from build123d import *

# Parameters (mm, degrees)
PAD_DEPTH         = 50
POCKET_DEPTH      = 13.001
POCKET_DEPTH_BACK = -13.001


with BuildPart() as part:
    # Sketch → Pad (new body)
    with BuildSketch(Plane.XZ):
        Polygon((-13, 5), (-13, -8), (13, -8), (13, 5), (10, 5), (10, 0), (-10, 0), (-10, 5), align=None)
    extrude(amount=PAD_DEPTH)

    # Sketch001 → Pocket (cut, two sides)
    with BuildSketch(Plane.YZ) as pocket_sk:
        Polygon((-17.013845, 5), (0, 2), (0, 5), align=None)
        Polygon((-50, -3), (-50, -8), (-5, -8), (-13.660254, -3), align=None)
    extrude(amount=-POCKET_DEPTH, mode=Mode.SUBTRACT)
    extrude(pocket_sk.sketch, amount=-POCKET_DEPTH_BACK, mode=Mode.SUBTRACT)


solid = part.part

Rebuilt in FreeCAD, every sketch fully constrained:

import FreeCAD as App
import Part
import Sketcher
from FreeCAD import Vector
Q = App.Units.Quantity

doc = App.newDocument("Part")
body = doc.addObject("PartDesign::Body", "Body")

# Sketch on XZ plane
sketch1 = body.newObject("Sketcher::SketchObject", "Sketch")
sketch1.AttachmentSupport = (doc.getObject("XZ_Plane"), [""])
sketch1.MapMode = "FlatFace"
sketch1.addGeometry([
    Part.LineSegment(Vector(-13, 5, 0), Vector(-13, -8, 0)),  # 0
    Part.LineSegment(Vector(-13, -8, 0), Vector(13, -8, 0)),  # 1
    Part.LineSegment(Vector(13, -8, 0), Vector(13, 5, 0)),  # 2
    Part.LineSegment(Vector(13, 5, 0), Vector(10, 5, 0)),  # 3
    Part.LineSegment(Vector(10, 5, 0), Vector(10, 0, 0)),  # 4
    Part.LineSegment(Vector(10, 0, 0), Vector(-10, 0, 0)),  # 5
    Part.LineSegment(Vector(-10, 0, 0), Vector(-10, 5, 0)),  # 6
    Part.LineSegment(Vector(-10, 5, 0), Vector(-13, 5, 0)),  # 7
], False)
sketch1.addConstraint([
    Sketcher.Constraint("Coincident", 0, 2, 1, 1),
    Sketcher.Constraint("Coincident", 1, 2, 2, 1),
    Sketcher.Constraint("Coincident", 2, 2, 3, 1),
    Sketcher.Constraint("Coincident", 3, 2, 4, 1),
    Sketcher.Constraint("Coincident", 4, 2, 5, 1),
    Sketcher.Constraint("Coincident", 5, 2, 6, 1),
    Sketcher.Constraint("Coincident", 6, 2, 7, 1),
    Sketcher.Constraint("Coincident", 7, 2, 0, 1),
    Sketcher.Constraint("Vertical", 0),
    Sketcher.Constraint("Horizontal", 1),
    Sketcher.Constraint("Vertical", 2),
    Sketcher.Constraint("Horizontal", 3),
    Sketcher.Constraint("Vertical", 4),
    Sketcher.Constraint("Horizontal", 5),
    Sketcher.Constraint("Vertical", 6),
    Sketcher.Constraint("Horizontal", 7),
    Sketcher.Constraint("Symmetric", 4, 2, 5, 2, -1, 1),
    Sketcher.Constraint("Symmetric", 2, 2, 7, 2, -2),
    Sketcher.Constraint("DistanceX", 1, 1, 1, 2, 26.0),
    Sketcher.Constraint("DistanceX", 3, 2, 3, 1, 3.0),
    Sketcher.Constraint("DistanceY", 0, 2, 0, 1, 13.0),
    Sketcher.Constraint("DistanceY", 4, 2, 4, 1, 5.0),
])
pad1 = body.newObject("PartDesign::Pad", "Pad")
pad1.Profile = sketch1
pad1.Length = 50

# Sketch on YZ plane
sketch2 = body.newObject("Sketcher::SketchObject", "Sketch001")
sketch2.AttachmentSupport = (doc.getObject("YZ_Plane"), [""])
sketch2.MapMode = "FlatFace"
sketch2.addGeometry([
    Part.LineSegment(Vector(-17, 5, 0), Vector(0, 2, 0)),  # 0
    Part.LineSegment(Vector(0, 2, 0), Vector(0, 5, 0)),  # 1
    Part.LineSegment(Vector(0, 5, 0), Vector(-17, 5, 0)),  # 2
    Part.LineSegment(Vector(-50, -3, 0), Vector(-50, -8, 0)),  # 3
    Part.LineSegment(Vector(-50, -8, 0), Vector(-5, -8, 0)),  # 4
    Part.LineSegment(Vector(-5, -8, 0), Vector(-13.7, -3, 0)),  # 5
    Part.LineSegment(Vector(-13.7, -3, 0), Vector(-50, -3, 0)),  # 6
], False)
sketch2.addConstraint([
    Sketcher.Constraint("Coincident", 0, 2, 1, 1),
    Sketcher.Constraint("Coincident", 1, 2, 2, 1),
    Sketcher.Constraint("Coincident", 2, 2, 0, 1),
    Sketcher.Constraint("Coincident", 3, 2, 4, 1),
    Sketcher.Constraint("Coincident", 4, 2, 5, 1),
    Sketcher.Constraint("Coincident", 5, 2, 6, 1),
    Sketcher.Constraint("Coincident", 6, 2, 3, 1),
    Sketcher.Constraint("Vertical", 1),
    Sketcher.Constraint("Horizontal", 2),
    Sketcher.Constraint("Vertical", 3),
    Sketcher.Constraint("Horizontal", 4),
    Sketcher.Constraint("Horizontal", 6),
    Sketcher.Constraint("PointOnObject", 0, 2, -2),
    Sketcher.Constraint("DistanceX", 4, 1, 4, 2, 45.0),
    Sketcher.Constraint("DistanceY", 1, 1, 1, 2, 3.0),
    Sketcher.Constraint("DistanceY", 3, 2, 3, 1, 5.0),
    Sketcher.Constraint("Angle", 0, Q("-10 deg")),
    Sketcher.Constraint("Angle", 5, Q("150 deg")),
    Sketcher.Constraint("DistanceY", -1, 1, 0, 2, 2.0),
    Sketcher.Constraint("DistanceX", 3, 2, -1, 1, 50.0),
    Sketcher.Constraint("DistanceY", 3, 2, -1, 1, 8.0),
])
pocket1 = body.newObject("PartDesign::Pocket", "Pocket")
pocket1.Profile = sketch2
pocket1.Type = "ThroughAll"
pocket1.Midplane = True

doc.recompute()
